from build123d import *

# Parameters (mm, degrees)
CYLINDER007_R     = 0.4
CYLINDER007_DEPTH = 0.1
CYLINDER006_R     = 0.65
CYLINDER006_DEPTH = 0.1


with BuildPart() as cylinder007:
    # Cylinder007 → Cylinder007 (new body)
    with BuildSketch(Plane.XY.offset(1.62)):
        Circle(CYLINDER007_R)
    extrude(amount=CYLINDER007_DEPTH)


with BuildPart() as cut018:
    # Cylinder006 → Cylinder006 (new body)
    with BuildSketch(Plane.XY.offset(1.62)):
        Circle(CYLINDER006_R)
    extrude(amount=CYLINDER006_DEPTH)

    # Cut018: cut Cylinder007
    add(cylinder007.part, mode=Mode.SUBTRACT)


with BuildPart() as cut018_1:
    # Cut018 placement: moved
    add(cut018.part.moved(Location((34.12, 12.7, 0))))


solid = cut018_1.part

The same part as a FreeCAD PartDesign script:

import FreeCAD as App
import Part
import Sketcher
from FreeCAD import Vector

doc = App.newDocument("Part")
params = doc.addObject("Spreadsheet::Sheet", "Params")
for row, (alias, value) in enumerate([
    ("sketch1_diameter", "0.8 mm"),
    ("pad1_length", "0.1 mm"),
    ("sketch2_diameter", "1.3 mm"),
    ("pad2_length", "0.1 mm"),
], start=1):
    params.set(f"A{row}", alias)
    params.set(f"B{row}", "=" + value)
    params.setAlias(f"B{row}", alias)

body = doc.addObject("PartDesign::Body", "Body")

# Sketch on XY plane
sketch1 = body.newObject("Sketcher::SketchObject", "Sketch")
sketch1.AttachmentSupport = (doc.getObject("XY_Plane"), [""])
sketch1.MapMode = "FlatFace"
sketch1.AttachmentOffset = App.Placement(Vector(0, 0, 1.62), App.Rotation())
sketch1.addGeometry(Part.Circle(Vector(0, 0, 0), Vector(0, 0, 1), 0.4), False)
sketch1.addConstraint(Sketcher.Constraint("Coincident", 0, 3, -1, 1))
sketch1.addConstraint(Sketcher.Constraint("Diameter", 0, 0.8))
sketch1.setExpression("Constraints[1]", "Params.sketch1_diameter")
pad1 = body.newObject("PartDesign::Pad", "Pad")
pad1.Profile = sketch1
pad1.setExpression("Length", "Params.pad1_length")
body2 = doc.addObject("PartDesign::Body", "Body001")

# Sketch on XY plane
sketch2 = body2.newObject("Sketcher::SketchObject", "Sketch001")
sketch2.AttachmentSupport = (doc.getObject("XY_Plane001"), [""])
sketch2.MapMode = "FlatFace"
sketch2.AttachmentOffset = App.Placement(Vector(0, 0, 1.62), App.Rotation())
sketch2.addGeometry(Part.Circle(Vector(0, 0, 0), Vector(0, 0, 1), 0.7), False)
sketch2.addConstraint(Sketcher.Constraint("Coincident", 0, 3, -1, 1))
sketch2.addConstraint(Sketcher.Constraint("Diameter", 0, 1.3))
sketch2.setExpression("Constraints[1]", "Params.sketch2_diameter")
pad2 = body2.newObject("PartDesign::Pad", "Pad001")
pad2.Profile = sketch2
pad2.setExpression("Length", "Params.pad2_length")
doc.recompute()

boolean = body2.newObject("PartDesign::Boolean", "Boolean")
boolean.Type = "Cut"
boolean.addObjects([body])
body3 = doc.addObject("PartDesign::Body", "Body002")
doc.recompute()

body2.Placement = App.Placement(Vector(34.12, 12.7, 0), App.Rotation(Vector(0, 0, 1), 0))
boolean2 = body3.newObject("PartDesign::Boolean", "Boolean001")
boolean2.Type = "Fuse"
boolean2.addObjects([body2])

doc.recompute()
